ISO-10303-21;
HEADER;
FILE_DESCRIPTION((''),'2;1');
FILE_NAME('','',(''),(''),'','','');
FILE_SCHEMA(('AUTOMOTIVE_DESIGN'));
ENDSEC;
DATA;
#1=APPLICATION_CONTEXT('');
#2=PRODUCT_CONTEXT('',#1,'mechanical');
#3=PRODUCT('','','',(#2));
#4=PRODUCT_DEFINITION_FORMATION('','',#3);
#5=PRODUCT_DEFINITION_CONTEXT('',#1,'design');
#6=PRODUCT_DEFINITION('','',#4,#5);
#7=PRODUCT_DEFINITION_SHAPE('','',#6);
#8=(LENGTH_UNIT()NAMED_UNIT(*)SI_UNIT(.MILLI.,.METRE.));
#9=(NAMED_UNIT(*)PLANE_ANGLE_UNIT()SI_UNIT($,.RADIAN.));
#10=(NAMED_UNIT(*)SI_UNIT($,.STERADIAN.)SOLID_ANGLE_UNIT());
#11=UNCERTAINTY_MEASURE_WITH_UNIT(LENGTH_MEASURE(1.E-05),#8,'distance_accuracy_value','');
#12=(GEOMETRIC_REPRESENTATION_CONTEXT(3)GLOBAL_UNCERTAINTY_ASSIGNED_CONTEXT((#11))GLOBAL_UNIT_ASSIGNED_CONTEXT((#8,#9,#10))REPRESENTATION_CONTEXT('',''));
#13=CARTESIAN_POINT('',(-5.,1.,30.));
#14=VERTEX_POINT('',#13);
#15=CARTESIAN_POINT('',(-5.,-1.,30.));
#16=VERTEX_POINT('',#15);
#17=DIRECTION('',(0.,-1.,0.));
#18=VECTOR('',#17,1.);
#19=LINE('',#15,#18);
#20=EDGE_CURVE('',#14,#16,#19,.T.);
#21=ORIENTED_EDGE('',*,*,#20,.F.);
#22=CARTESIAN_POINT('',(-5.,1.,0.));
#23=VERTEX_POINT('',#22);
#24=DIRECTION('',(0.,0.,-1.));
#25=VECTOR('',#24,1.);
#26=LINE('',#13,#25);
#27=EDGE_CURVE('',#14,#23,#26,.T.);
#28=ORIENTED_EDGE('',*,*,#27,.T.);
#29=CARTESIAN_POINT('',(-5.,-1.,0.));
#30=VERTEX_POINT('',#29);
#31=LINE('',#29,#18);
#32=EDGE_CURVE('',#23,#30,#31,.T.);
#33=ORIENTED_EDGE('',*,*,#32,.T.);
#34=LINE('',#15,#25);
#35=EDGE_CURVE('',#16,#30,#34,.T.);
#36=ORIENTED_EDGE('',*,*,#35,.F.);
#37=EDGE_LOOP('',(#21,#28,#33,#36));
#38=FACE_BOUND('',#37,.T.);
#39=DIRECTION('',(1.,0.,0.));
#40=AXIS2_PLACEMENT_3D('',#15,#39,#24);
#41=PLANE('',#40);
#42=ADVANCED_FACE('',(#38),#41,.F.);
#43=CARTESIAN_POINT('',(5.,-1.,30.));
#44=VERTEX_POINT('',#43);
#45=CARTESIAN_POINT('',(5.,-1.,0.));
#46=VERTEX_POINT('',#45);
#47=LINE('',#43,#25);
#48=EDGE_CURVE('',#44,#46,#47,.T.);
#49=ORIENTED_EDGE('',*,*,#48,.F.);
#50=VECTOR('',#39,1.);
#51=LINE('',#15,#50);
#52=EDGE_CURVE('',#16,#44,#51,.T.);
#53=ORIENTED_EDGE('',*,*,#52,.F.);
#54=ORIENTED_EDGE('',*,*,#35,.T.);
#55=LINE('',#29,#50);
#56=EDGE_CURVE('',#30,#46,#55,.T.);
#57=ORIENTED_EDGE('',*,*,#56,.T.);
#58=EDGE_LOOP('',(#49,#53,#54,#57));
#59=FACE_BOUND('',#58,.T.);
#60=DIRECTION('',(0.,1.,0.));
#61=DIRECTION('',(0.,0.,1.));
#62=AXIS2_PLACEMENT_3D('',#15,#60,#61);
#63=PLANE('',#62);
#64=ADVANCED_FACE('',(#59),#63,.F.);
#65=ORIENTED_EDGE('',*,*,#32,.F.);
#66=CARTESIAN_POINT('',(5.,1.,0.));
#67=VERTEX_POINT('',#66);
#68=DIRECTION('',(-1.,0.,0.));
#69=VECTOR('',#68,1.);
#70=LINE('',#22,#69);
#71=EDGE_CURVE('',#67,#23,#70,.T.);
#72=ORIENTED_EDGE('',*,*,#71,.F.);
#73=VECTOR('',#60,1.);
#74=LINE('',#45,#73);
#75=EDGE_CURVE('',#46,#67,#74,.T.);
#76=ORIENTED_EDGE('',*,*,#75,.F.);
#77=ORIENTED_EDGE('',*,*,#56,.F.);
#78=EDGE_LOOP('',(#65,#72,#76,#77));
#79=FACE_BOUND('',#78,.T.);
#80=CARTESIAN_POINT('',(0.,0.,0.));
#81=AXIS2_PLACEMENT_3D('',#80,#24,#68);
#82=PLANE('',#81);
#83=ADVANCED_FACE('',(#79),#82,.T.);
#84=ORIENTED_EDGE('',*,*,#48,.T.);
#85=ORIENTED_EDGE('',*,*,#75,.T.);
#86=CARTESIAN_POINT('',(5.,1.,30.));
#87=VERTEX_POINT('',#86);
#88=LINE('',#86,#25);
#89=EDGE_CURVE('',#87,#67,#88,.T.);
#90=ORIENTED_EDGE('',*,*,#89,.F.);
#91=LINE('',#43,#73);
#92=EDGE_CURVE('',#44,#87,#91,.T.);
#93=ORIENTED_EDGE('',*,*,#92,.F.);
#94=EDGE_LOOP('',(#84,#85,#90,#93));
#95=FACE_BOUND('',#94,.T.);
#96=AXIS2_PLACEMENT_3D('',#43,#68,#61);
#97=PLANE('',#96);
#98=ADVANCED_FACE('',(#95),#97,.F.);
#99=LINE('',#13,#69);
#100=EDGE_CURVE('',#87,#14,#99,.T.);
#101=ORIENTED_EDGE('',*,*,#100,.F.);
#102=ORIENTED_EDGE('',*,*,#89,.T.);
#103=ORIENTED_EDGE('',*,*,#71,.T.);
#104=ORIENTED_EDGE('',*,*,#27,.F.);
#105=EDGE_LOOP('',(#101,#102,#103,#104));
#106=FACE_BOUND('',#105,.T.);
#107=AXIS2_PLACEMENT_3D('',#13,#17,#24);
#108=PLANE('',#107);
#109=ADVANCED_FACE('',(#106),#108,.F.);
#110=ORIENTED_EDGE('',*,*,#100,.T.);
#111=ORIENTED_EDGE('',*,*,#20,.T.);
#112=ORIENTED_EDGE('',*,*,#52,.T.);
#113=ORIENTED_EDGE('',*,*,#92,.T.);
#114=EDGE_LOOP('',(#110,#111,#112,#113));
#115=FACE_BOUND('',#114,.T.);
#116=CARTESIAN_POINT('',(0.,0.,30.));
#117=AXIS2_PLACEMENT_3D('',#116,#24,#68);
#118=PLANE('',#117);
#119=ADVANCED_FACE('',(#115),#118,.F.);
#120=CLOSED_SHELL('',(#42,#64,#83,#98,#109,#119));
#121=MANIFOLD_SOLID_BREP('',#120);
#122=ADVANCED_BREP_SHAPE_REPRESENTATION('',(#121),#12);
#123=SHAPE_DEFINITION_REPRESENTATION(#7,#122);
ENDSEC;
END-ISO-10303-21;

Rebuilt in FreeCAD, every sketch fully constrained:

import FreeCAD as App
import Part
import Sketcher
from FreeCAD import Vector


def add_polygon(sketch, points):
    """Adds a closed chain of lines whose ends are joined by coincident constraints."""
    first, n = sketch.GeometryCount, len(points)
    for a, b in zip(points, points[1:] + points[:1]):
        sketch.addGeometry(Part.LineSegment(App.Vector(*a, 0), App.Vector(*b, 0)), False)
    for i in range(n):
        sketch.addConstraint(Sketcher.Constraint("Coincident", first + i, 2, first + (i + 1) % n, 1))

doc = App.newDocument("Part")
params = doc.addObject("Spreadsheet::Sheet", "Params")
for row, (alias, value) in enumerate([
    ("sketch1_width", "10 mm"),
    ("sketch1_height", "2 mm"),
    ("pad1_length", "30 mm"),
], start=1):
    params.set(f"A{row}", alias)
    params.set(f"B{row}", "=" + value)
    params.setAlias(f"B{row}", alias)

body = doc.addObject("PartDesign::Body", "Body")

sketch1 = body.newObject("Sketcher::SketchObject", "Sketch")
sketch1.AttachmentSupport = (doc.getObject("XY_Plane"), [""])
sketch1.MapMode = "FlatFace"
add_polygon(sketch1, [(-5, 1), (-5, -1), (5, -1), (5, 1)])
sketch1.addConstraint(Sketcher.Constraint("Vertical", 0))
sketch1.addConstraint(Sketcher.Constraint("Horizontal", 1))
sketch1.addConstraint(Sketcher.Constraint("Vertical", 2))
sketch1.addConstraint(Sketcher.Constraint("Horizontal", 3))
sketch1.addConstraint(Sketcher.Constraint("Symmetric", 0, 2, 2, 2, -1, 1))
sketch1.addConstraint(Sketcher.Constraint("DistanceX", 1, 1, 1, 2, 10.0))
sketch1.addConstraint(Sketcher.Constraint("DistanceY", 0, 2, 0, 1, 2.0))
sketch1.setExpression("Constraints[9]", "Params.sketch1_width")
sketch1.setExpression("Constraints[10]", "Params.sketch1_height")
pad1 = body.newObject("PartDesign::Pad", "Pad")
pad1.Profile = sketch1
pad1.setExpression("Length", "Params.pad1_length")

doc.recompute()
